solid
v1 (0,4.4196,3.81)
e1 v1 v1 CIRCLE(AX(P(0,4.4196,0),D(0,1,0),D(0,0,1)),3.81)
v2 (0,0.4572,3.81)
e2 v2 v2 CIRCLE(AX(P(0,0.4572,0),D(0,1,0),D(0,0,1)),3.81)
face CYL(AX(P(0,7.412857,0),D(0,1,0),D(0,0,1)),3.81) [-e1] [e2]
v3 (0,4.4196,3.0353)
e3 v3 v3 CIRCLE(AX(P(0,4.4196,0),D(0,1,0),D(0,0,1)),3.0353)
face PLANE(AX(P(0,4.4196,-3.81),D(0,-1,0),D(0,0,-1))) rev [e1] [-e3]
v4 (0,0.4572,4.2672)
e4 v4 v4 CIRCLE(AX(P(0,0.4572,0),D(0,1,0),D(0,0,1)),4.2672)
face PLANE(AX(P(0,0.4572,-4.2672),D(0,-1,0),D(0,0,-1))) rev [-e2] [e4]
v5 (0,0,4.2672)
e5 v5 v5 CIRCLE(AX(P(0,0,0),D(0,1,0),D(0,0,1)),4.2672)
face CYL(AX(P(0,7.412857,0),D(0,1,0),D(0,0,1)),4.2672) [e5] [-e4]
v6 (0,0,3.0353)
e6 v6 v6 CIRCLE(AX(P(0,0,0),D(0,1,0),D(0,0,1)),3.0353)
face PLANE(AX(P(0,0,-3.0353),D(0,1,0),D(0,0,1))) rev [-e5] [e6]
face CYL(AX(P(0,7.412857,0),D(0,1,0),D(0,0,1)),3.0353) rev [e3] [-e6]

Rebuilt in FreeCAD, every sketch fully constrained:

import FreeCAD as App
import Part
import Sketcher

V = App.Vector
Q = App.Units.Quantity

doc = App.newDocument("Part")
body = doc.addObject("PartDesign::Body", "Body")

# Sketch on YZ plane
sketch1 = body.newObject("Sketcher::SketchObject", "Sketch")
sketch1.AttachmentSupport = (doc.getObject("YZ_Plane"), [""])
sketch1.MapMode = "FlatFace"
sketch1.addGeometry([
    Part.LineSegment(V(0, -3.04, 0), V(0, -4.27, 0)),  # 0
    Part.LineSegment(V(0, -4.27, 0), V(0.46, -4.27, 0)),  # 1
    Part.LineSegment(V(0.46, -4.27, 0), V(0.46, -3.81, 0)),  # 2
    Part.LineSegment(V(0.46, -3.81, 0), V(4.42, -3.81, 0)),  # 3
    Part.LineSegment(V(4.42, -3.81, 0), V(4.42, -3.04, 0)),  # 4
    Part.LineSegment(V(4.42, -3.04, 0), V(0, -3.04, 0)),  # 5
], False)
sketch1.addConstraint([
    Sketcher.Constraint("Coincident", 0, 2, 1, 1),
    Sketcher.Constraint("Coincident", 1, 2, 2, 1),
    Sketcher.Constraint("Coincident", 2, 2, 3, 1),
    Sketcher.Constraint("Coincident", 3, 2, 4, 1),
    Sketcher.Constraint("Coincident", 4, 2, 5, 1),
    Sketcher.Constraint("Coincident", 5, 2, 0, 1),
    Sketcher.Constraint("Vertical", 0),
    Sketcher.Constraint("Horizontal", 1),
    Sketcher.Constraint("Vertical", 2),
    Sketcher.Constraint("Horizontal", 3),
    Sketcher.Constraint("Vertical", 4),
    Sketcher.Constraint("Horizontal", 5),
    Sketcher.Constraint("PointOnObject", 0, 2, -2),
    Sketcher.Constraint("Equal", 1, 2),
    Sketcher.Constraint("DistanceX", 1, 1, 1, 2, Q("0.018 in")),
    Sketcher.Constraint("DistanceX", 3, 1, 3, 2, Q("0.156 in")),
    Sketcher.Constraint("DistanceY", 2, 2, -1, 1, Q("0.15 in")),
    Sketcher.Constraint("DistanceY", 0, 2, 0, 1, Q("0.0485 in")),
])
revolution = body.newObject("PartDesign::Revolution", "Revolution")
revolution.Profile = sketch1
revolution.ReferenceAxis = (sketch1, ["H_Axis"])
revolution.Angle = 360

doc.recompute()
